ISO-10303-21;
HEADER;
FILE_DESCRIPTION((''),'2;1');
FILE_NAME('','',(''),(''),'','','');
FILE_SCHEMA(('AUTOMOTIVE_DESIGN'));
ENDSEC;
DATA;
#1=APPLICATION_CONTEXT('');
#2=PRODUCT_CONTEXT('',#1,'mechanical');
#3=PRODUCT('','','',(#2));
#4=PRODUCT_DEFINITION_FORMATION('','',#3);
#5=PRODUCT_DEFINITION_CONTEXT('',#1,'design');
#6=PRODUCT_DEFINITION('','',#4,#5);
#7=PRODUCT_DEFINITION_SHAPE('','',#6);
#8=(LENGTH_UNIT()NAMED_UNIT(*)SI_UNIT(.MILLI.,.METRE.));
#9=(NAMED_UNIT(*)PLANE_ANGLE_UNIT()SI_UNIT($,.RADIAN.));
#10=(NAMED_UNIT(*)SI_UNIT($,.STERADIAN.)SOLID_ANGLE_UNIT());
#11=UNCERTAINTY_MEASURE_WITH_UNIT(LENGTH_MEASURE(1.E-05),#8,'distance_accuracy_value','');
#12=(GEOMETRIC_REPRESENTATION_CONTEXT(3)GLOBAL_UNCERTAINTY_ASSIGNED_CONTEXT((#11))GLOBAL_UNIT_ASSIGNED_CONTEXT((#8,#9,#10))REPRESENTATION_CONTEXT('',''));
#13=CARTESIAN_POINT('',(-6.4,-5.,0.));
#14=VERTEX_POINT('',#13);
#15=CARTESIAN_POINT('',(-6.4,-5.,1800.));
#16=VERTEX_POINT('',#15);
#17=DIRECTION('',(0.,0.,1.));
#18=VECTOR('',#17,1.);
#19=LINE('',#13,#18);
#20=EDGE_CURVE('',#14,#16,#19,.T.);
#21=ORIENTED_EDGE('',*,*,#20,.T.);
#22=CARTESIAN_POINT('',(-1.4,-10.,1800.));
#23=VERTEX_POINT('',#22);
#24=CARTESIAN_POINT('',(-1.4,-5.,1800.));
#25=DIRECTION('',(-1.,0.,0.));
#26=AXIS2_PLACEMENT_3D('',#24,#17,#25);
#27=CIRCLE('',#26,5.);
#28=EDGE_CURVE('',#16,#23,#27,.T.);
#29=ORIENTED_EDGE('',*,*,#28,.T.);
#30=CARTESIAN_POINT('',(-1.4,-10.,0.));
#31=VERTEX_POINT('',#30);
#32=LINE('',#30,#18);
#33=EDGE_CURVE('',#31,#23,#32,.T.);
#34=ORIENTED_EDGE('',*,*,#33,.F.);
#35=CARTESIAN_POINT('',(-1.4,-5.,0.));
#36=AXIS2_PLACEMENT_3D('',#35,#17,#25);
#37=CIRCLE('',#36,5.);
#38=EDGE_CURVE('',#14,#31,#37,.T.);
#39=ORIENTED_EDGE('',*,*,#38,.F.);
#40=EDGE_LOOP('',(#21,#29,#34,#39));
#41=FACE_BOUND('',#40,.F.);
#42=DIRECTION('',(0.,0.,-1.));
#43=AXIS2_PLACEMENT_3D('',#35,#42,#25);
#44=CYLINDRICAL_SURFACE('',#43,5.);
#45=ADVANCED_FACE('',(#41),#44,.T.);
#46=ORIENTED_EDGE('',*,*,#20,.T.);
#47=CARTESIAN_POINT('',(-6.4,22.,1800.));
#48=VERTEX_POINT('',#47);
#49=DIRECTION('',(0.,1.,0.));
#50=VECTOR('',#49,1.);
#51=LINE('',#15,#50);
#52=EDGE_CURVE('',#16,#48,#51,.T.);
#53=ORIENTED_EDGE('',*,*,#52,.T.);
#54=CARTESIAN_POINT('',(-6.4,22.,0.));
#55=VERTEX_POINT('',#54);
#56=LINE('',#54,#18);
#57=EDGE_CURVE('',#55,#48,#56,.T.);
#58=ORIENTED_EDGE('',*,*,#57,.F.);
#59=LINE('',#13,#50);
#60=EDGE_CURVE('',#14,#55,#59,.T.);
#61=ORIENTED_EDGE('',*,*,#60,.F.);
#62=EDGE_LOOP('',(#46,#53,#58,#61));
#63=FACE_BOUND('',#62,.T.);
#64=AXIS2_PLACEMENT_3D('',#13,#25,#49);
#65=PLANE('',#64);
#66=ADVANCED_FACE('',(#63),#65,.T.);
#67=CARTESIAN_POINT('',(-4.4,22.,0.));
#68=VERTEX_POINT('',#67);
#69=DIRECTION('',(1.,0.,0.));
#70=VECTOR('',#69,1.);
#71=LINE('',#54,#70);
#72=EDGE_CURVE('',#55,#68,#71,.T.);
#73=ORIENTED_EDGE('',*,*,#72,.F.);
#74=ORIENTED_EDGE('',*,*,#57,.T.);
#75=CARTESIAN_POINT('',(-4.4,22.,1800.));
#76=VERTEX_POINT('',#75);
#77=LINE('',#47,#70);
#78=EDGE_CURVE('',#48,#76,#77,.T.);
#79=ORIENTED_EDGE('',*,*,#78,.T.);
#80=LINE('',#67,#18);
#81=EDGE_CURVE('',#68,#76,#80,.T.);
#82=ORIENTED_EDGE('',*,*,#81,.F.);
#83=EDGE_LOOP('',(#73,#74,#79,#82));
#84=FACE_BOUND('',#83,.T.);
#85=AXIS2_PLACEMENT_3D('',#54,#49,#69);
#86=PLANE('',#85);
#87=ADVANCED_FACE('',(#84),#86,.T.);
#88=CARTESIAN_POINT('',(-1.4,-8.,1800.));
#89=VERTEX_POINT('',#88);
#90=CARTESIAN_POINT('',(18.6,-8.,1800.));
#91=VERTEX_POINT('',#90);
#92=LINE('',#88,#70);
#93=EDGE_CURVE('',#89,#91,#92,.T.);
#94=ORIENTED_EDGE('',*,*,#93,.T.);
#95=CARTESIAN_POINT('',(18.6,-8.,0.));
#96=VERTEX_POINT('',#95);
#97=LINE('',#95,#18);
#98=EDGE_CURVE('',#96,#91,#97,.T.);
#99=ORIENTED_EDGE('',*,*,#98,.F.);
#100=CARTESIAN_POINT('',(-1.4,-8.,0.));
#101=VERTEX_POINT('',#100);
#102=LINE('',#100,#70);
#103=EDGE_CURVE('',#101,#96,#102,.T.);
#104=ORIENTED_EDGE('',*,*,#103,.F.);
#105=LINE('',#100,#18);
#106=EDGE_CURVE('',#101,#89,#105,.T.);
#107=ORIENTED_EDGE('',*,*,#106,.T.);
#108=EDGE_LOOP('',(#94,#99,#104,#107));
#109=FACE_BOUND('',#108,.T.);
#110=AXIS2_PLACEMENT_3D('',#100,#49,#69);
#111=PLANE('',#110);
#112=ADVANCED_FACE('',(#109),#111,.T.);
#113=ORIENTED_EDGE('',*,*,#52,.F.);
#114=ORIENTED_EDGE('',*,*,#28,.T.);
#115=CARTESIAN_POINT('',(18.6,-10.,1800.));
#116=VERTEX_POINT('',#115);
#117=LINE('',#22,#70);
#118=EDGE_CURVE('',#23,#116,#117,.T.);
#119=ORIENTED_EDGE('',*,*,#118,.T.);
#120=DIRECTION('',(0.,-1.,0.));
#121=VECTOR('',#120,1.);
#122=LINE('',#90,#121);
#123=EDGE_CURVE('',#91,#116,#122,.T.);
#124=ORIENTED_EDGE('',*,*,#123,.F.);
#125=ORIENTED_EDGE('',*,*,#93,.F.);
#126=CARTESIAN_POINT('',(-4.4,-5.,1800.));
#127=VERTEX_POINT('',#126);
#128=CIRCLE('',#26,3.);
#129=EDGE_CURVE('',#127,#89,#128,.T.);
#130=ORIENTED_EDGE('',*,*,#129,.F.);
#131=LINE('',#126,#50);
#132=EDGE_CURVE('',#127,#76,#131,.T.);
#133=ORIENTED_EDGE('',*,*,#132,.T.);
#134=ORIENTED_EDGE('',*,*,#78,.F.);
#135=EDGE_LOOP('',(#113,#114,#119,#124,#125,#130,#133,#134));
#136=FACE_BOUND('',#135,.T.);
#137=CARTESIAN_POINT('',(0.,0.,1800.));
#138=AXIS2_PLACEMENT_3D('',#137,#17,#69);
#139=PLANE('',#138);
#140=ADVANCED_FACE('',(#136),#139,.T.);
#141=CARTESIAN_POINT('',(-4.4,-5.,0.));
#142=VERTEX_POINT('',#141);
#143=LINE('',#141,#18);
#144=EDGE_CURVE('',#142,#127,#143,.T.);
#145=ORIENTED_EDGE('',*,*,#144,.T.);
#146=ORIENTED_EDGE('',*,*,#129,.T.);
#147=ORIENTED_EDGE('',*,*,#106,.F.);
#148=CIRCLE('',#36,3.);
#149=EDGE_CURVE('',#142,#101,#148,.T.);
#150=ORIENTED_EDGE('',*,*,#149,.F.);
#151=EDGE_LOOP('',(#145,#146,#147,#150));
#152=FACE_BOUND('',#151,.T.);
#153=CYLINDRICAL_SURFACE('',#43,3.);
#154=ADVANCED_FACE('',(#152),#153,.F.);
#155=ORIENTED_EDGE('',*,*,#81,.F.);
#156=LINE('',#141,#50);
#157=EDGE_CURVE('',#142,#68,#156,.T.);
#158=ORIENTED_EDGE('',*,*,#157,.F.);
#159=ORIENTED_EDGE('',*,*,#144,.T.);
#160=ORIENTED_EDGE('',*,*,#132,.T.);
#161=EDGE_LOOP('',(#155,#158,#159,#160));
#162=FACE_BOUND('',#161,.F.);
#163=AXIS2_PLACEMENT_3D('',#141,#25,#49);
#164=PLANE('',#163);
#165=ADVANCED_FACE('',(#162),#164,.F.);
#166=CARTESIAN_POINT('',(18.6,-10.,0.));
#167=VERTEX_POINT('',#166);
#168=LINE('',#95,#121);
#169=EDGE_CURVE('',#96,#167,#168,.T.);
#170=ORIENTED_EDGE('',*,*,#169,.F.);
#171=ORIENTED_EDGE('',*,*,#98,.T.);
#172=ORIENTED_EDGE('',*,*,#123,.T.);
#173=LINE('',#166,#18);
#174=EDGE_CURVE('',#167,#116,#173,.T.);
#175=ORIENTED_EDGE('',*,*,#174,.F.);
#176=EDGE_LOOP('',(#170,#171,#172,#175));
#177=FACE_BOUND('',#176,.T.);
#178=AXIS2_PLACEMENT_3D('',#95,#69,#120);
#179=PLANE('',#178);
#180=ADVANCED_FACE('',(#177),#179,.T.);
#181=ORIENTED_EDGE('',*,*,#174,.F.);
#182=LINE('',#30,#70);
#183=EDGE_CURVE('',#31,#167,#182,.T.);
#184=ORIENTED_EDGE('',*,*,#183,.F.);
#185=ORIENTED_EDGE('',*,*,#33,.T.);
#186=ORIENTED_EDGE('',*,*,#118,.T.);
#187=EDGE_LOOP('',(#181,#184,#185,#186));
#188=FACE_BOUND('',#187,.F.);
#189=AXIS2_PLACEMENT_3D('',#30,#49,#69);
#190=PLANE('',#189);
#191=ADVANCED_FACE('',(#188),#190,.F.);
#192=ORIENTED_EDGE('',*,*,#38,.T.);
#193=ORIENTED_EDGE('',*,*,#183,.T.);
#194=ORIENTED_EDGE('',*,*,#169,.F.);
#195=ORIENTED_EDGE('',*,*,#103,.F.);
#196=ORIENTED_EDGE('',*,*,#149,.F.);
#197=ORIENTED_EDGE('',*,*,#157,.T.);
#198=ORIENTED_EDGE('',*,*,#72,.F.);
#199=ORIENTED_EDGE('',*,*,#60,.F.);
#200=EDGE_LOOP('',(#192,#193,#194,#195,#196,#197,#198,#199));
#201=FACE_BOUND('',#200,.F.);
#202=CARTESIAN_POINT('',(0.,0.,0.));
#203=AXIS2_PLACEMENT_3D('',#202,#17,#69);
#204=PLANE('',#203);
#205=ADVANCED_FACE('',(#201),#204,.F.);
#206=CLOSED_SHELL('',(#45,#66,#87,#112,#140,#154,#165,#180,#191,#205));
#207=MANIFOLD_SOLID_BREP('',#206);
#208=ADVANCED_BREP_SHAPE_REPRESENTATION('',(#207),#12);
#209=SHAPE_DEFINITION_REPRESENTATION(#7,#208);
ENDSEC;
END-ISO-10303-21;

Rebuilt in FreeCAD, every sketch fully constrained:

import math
import FreeCAD as App
import Part
import Sketcher

V = App.Vector

doc = App.newDocument("Part")
body = doc.addObject("PartDesign::Body", "Body")

# Sketch on XY plane
sketch1 = body.newObject("Sketcher::SketchObject", "Sketch")
sketch1.AttachmentSupport = (doc.getObject("XY_Plane"), [""])
sketch1.MapMode = "FlatFace"
sketch1.addGeometry([
    Part.ArcOfCircle(Part.Circle(V(-1.4, -5, 0), V(0, 0, 1), 3), math.radians(180), math.radians(270)),  # 0
    Part.LineSegment(V(-4.4, -5, 0), V(-4.4, 22, 0)),  # 1
    Part.LineSegment(V(-4.4, 22, 0), V(-6.4, 22, 0)),  # 2
    Part.LineSegment(V(-6.4, 22, 0), V(-6.4, -5, 0)),  # 3
    Part.ArcOfCircle(Part.Circle(V(-1.4, -5, 0), V(0, 0, 1), 5), math.radians(180), math.radians(270)),  # 4
    Part.LineSegment(V(-1.4, -10, 0), V(18.6, -10, 0)),  # 5
    Part.LineSegment(V(18.6, -10, 0), V(18.6, -8, 0)),  # 6
    Part.LineSegment(V(18.6, -8, 0), V(-1.4, -8, 0)),  # 7
], False)
sketch1.addConstraint([
    Sketcher.Constraint("Tangent", 0, 1, 1, 1),
    Sketcher.Constraint("Coincident", 1, 2, 2, 1),
    Sketcher.Constraint("Coincident", 2, 2, 3, 1),
    Sketcher.Constraint("Tangent", 3, 2, 4, 1),
    Sketcher.Constraint("Tangent", 4, 2, 5, 1),
    Sketcher.Constraint("Coincident", 5, 2, 6, 1),
    Sketcher.Constraint("Coincident", 6, 2, 7, 1),
    Sketcher.Constraint("Tangent", 7, 2, 0, 2),
    Sketcher.Constraint("Vertical", 1),
    Sketcher.Constraint("Horizontal", 2),
    Sketcher.Constraint("Vertical", 3),
    Sketcher.Constraint("Horizontal", 5),
    Sketcher.Constraint("Vertical", 6),
    Sketcher.Constraint("Horizontal", 7),
    Sketcher.Constraint("Coincident", 4, 3, 0, 3),
    Sketcher.Constraint("Radius", 0, 3.0),
    Sketcher.Constraint("Radius", 4, 5.0),
    Sketcher.Constraint("DistanceY", 0, 3, -1, 1, 5.0),
    Sketcher.Constraint("DistanceY", 4, 2, 1, 2, 32.0),
    Sketcher.Constraint("DistanceX", 3, 2, 5, 2, 25.0),
    Sketcher.Constraint("DistanceX", 2, 2, -1, 1, 6.4),
])
pad1 = body.newObject("PartDesign::Pad", "Pad")
pad1.Profile = sketch1
pad1.Length = 1800

doc.recompute()
